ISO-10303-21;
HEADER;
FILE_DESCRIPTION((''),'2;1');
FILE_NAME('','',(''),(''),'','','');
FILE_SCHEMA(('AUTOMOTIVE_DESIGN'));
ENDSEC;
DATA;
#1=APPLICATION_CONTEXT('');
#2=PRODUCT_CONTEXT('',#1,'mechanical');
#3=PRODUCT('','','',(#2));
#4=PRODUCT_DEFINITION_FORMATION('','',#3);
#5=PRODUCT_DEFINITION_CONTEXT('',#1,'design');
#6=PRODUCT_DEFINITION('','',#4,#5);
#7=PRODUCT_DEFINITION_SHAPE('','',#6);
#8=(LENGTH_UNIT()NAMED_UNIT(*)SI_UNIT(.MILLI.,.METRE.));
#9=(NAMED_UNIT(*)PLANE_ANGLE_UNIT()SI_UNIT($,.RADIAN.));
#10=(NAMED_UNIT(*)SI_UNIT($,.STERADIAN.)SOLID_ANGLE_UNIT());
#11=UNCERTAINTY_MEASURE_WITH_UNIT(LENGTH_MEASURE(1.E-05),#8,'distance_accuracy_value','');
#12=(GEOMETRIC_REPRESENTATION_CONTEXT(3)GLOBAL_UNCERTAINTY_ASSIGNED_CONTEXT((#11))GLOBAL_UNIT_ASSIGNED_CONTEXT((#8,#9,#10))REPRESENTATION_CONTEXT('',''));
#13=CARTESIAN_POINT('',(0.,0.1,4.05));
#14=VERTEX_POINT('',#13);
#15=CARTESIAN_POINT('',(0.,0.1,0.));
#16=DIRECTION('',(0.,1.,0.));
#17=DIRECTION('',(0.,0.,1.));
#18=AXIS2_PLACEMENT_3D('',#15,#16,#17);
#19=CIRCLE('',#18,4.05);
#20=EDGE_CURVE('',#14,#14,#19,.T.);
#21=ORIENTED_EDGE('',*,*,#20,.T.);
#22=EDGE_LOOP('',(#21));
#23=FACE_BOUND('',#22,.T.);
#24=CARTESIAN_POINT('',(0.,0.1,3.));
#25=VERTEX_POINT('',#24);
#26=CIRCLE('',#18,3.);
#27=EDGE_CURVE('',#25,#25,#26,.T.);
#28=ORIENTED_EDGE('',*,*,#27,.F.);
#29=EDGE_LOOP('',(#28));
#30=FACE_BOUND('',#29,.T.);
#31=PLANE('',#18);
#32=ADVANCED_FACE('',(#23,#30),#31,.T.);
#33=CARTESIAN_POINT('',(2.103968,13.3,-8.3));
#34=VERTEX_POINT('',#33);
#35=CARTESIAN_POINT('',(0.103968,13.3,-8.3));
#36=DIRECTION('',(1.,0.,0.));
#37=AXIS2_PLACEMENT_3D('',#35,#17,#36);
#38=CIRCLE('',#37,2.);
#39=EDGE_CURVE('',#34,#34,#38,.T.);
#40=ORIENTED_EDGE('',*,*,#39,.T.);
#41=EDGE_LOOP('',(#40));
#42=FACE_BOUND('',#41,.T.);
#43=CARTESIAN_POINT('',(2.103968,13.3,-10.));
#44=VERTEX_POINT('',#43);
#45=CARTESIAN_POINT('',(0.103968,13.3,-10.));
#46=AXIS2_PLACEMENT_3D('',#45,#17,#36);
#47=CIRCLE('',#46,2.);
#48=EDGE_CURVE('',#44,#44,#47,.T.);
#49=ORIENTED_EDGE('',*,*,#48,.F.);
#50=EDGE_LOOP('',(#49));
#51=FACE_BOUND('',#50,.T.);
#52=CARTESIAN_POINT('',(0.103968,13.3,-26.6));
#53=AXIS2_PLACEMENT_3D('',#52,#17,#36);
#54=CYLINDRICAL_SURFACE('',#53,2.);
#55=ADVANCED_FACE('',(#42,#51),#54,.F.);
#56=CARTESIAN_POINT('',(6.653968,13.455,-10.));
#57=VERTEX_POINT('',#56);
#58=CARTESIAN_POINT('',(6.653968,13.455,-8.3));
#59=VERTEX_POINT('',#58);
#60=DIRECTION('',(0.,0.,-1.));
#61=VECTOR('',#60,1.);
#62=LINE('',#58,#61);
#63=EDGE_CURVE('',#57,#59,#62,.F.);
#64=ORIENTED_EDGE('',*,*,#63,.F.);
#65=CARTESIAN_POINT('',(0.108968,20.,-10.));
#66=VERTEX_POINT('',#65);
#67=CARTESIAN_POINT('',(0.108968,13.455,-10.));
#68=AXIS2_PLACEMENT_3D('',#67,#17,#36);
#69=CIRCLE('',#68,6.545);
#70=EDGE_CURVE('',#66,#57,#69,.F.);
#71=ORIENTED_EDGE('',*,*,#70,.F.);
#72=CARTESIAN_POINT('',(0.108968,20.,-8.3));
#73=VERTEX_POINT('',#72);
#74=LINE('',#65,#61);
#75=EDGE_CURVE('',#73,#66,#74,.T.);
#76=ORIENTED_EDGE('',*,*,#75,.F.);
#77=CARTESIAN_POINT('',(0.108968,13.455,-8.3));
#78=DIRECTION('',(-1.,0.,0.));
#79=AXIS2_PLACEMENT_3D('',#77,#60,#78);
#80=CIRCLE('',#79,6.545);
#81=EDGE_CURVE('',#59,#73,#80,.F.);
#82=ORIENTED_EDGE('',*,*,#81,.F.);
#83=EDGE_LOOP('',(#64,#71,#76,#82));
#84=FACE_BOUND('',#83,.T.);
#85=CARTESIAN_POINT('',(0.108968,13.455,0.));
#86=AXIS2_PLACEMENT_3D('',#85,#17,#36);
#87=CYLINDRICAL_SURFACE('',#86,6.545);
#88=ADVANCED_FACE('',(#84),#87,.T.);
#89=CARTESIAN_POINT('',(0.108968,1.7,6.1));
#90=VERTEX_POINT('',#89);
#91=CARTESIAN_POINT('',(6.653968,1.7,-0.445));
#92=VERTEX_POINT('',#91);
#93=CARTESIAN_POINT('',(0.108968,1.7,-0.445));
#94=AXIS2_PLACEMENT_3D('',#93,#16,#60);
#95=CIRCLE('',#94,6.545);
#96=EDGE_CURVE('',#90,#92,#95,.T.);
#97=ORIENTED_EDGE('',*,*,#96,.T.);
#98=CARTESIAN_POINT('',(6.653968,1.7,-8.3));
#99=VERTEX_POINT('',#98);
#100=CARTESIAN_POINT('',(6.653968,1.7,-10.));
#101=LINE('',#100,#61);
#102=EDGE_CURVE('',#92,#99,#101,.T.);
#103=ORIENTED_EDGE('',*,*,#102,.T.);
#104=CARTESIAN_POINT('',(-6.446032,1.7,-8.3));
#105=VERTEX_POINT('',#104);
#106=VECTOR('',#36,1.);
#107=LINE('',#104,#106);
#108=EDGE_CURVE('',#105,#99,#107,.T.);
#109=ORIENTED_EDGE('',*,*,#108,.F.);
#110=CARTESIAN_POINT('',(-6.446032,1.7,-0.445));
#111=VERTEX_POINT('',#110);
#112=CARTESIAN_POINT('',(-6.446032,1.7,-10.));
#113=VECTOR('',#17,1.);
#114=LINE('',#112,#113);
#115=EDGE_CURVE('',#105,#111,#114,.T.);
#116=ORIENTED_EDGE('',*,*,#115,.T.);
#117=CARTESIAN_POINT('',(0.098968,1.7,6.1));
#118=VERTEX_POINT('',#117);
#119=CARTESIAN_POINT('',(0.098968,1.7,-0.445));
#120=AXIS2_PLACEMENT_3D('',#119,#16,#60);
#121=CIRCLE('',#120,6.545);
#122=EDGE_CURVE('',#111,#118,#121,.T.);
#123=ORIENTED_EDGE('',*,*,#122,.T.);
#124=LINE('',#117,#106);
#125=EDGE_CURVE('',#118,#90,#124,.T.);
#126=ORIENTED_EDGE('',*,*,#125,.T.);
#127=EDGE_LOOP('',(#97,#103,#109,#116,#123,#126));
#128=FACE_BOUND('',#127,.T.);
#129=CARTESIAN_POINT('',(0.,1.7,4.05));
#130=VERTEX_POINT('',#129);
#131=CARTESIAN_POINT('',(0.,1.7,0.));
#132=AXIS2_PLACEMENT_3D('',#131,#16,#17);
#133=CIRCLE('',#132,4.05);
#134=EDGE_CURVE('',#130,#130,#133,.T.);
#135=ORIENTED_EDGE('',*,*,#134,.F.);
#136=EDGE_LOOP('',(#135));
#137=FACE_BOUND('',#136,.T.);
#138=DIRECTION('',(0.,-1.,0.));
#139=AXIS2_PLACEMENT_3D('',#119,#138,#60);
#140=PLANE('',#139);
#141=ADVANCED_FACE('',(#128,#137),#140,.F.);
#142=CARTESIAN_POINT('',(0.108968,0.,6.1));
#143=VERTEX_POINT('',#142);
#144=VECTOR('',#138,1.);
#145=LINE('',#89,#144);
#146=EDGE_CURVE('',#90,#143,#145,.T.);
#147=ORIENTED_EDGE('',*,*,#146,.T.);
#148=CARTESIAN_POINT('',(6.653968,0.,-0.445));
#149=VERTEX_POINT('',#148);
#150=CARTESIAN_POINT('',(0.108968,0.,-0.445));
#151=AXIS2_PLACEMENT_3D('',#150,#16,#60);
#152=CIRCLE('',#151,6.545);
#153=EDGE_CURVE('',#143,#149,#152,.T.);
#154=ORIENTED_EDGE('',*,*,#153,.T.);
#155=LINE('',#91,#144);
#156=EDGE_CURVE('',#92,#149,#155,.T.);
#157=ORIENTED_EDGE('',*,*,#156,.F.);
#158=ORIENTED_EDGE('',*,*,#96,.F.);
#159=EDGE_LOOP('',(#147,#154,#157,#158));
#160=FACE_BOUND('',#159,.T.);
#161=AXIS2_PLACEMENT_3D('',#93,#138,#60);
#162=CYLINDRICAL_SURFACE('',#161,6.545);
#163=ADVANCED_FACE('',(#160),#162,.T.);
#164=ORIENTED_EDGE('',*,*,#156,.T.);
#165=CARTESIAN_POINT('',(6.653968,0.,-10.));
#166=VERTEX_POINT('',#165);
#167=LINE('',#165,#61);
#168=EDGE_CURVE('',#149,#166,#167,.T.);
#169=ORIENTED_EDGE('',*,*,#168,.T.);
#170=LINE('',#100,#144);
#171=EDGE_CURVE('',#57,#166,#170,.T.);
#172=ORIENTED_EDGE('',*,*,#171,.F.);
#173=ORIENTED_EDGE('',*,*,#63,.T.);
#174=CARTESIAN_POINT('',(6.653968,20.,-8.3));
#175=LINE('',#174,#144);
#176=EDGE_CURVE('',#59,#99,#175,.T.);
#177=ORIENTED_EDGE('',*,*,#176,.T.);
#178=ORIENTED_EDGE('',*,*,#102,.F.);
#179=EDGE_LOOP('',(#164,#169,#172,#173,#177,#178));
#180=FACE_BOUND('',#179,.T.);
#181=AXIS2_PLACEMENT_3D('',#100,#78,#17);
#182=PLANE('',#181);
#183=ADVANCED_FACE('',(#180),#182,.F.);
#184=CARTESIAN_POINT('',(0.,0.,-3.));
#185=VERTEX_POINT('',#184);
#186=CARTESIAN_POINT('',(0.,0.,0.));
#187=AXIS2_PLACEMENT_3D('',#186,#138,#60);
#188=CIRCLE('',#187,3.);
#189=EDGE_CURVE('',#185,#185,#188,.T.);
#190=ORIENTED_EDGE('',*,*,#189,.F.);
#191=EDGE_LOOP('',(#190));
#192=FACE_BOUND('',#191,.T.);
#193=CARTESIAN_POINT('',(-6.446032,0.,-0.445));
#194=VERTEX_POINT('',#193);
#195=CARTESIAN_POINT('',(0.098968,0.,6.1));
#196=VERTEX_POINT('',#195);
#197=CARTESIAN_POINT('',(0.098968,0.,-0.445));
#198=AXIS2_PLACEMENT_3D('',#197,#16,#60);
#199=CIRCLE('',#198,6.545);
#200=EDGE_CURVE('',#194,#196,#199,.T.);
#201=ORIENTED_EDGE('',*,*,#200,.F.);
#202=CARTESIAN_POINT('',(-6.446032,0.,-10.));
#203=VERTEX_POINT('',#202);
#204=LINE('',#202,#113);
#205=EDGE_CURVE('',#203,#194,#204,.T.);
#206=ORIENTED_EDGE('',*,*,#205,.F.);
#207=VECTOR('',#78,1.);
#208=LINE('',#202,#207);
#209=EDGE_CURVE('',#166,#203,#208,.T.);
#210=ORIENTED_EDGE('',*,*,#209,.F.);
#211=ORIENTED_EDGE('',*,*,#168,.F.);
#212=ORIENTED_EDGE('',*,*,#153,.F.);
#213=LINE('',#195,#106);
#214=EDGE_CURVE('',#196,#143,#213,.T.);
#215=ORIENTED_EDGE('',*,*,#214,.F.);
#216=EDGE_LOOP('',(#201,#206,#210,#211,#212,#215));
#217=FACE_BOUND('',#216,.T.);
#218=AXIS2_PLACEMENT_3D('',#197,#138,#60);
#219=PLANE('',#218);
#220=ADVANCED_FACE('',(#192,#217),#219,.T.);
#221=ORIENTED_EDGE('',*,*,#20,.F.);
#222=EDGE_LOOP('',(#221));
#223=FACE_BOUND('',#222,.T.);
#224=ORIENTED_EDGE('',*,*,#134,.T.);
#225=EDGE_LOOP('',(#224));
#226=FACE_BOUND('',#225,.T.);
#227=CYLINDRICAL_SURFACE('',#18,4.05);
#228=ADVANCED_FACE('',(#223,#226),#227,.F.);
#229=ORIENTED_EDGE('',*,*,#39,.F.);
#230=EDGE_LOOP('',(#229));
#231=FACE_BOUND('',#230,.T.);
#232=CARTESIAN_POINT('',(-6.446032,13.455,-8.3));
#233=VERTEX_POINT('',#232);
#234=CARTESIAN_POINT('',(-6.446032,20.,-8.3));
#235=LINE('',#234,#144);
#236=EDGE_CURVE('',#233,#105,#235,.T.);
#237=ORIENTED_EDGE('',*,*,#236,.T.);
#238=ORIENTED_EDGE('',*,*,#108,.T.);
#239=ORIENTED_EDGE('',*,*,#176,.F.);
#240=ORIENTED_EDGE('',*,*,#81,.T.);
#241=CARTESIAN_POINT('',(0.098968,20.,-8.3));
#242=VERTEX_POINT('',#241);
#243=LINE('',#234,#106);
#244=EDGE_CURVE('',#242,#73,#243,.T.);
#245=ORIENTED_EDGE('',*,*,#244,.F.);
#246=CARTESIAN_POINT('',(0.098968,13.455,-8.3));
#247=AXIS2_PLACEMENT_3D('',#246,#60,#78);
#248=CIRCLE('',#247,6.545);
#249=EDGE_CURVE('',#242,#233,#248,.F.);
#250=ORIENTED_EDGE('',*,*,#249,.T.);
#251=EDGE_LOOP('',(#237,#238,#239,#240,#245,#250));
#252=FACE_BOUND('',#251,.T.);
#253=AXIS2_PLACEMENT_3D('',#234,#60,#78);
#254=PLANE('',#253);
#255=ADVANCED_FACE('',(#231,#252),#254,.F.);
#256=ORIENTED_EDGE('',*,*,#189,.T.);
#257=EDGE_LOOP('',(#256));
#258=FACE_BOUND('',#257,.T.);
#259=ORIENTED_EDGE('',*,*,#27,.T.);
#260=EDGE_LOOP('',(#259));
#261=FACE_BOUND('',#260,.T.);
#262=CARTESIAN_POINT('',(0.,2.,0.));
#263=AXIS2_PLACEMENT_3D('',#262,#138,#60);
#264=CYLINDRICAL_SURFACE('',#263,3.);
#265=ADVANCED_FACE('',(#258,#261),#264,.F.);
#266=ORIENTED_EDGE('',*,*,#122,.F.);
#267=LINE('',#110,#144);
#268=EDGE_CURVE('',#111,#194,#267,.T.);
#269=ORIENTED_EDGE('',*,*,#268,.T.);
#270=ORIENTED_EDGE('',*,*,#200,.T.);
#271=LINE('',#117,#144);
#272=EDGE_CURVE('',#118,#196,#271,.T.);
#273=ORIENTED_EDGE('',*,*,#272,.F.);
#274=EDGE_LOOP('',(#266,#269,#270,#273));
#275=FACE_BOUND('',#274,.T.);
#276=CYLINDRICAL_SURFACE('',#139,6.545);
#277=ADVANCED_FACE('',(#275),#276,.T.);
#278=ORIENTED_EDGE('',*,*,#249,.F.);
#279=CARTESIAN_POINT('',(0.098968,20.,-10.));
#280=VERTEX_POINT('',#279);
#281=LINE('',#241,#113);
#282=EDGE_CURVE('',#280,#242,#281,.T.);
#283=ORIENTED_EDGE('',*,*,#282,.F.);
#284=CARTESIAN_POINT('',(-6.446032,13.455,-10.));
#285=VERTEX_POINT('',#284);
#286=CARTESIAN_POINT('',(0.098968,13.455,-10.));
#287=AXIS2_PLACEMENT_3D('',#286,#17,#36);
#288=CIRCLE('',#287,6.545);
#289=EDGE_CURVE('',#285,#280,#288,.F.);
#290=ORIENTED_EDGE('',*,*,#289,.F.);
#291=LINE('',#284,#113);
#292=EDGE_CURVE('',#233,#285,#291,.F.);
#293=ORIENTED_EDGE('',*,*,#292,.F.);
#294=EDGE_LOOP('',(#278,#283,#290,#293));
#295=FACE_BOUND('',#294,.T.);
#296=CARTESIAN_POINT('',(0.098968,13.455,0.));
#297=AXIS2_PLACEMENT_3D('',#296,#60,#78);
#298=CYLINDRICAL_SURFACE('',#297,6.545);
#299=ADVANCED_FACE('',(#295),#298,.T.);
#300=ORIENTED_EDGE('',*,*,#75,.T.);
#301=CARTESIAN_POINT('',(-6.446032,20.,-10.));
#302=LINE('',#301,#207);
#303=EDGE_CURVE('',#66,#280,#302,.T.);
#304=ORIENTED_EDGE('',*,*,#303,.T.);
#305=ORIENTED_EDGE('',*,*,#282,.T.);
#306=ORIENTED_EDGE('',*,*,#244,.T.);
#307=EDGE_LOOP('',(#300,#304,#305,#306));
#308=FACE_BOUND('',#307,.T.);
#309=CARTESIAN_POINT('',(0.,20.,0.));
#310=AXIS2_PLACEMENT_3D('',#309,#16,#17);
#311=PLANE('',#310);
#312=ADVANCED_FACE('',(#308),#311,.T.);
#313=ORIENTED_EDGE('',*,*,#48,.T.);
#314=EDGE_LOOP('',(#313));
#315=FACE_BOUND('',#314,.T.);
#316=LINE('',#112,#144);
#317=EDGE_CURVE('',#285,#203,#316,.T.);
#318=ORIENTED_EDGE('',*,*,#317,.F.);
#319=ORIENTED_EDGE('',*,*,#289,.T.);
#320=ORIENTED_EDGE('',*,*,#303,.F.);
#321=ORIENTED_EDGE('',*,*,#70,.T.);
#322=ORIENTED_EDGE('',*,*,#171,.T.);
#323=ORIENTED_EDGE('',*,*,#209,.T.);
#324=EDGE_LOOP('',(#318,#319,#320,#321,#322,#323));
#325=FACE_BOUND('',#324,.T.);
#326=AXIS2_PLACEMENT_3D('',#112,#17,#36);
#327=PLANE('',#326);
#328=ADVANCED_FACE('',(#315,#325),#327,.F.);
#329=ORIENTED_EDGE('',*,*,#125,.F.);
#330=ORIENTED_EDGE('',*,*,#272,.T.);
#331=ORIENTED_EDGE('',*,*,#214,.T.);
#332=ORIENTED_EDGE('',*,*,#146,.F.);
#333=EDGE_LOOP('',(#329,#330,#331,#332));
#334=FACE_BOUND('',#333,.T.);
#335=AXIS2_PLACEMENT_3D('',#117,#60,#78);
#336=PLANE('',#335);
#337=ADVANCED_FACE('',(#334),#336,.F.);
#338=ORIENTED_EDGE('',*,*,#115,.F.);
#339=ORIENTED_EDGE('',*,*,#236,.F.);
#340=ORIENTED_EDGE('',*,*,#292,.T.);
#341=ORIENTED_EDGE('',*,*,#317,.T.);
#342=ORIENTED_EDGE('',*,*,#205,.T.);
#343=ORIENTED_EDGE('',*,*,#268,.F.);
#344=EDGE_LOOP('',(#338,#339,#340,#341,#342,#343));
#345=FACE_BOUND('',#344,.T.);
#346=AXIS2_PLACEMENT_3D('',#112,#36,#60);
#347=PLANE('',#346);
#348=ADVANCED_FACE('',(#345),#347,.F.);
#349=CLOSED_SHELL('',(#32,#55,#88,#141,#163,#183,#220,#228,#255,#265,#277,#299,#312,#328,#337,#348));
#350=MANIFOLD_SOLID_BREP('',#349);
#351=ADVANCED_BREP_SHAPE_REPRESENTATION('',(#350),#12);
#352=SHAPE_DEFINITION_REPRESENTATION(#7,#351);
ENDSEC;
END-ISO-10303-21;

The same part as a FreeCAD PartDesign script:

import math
import FreeCAD as App
import Part
import Sketcher
from FreeCAD import Vector
Q = App.Units.Quantity


def edges_at(feature, points):
    """Names of the edges that pass closest to the given points."""
    edges = feature.Shape.Edges
    near = lambda p: min(range(len(edges)), key=lambda i: edges[i].distToShape(Part.Vertex(*p))[0])
    return sorted({f"Edge{near(p) + 1}" for p in points})


def add_polygon(sketch, points):
    """Adds a closed chain of lines whose ends are joined by coincident constraints."""
    first, n = sketch.GeometryCount, len(points)
    for a, b in zip(points, points[1:] + points[:1]):
        sketch.addGeometry(Part.LineSegment(App.Vector(*a, 0), App.Vector(*b, 0)), False)
    for i in range(n):
        sketch.addConstraint(Sketcher.Constraint("Coincident", first + i, 2, first + (i + 1) % n, 1))

doc = App.newDocument("Part")
body = doc.addObject("PartDesign::Body", "Body")

sketch1 = body.newObject("Sketcher::SketchObject", "Sketch")
sketch1.AttachmentSupport = (doc.getObject("XZ_Plane"), [""])
sketch1.MapMode = "FlatFace"
sketch1.addGeometry([
    Part.LineSegment(Vector(6.654, -10, 0), Vector(-6.446, -10, 0)),
    Part.LineSegment(Vector(-6.446, -10, 0), Vector(-6.446, -0.445, 0)),
    Part.ArcOfCircle(Part.Circle(Vector(0.099, -0.445, 0), Vector(0, 0, 1), 6.545), math.radians(90), math.radians(180)),
    Part.LineSegment(Vector(0.099, 6.1, 0), Vector(0.109, 6.1, 0)),
    Part.ArcOfCircle(Part.Circle(Vector(0.109, -0.445, 0), Vector(0, 0, 1), 6.545), math.radians(0), math.radians(90)),
    Part.LineSegment(Vector(6.654, -0.445, 0), Vector(6.654, -10, 0)),
    Part.Circle(Vector(0, 0, 0), Vector(0, 0, 1), 2.5),
], False)
sketch1.addConstraint([
    Sketcher.Constraint("Coincident", 0, 2, 1, 1),
    Sketcher.Constraint("Tangent", 1, 2, 2, 2),
    Sketcher.Constraint("Tangent", 2, 1, 3, 1),
    Sketcher.Constraint("Tangent", 3, 2, 4, 2),
    Sketcher.Constraint("Tangent", 4, 1, 5, 1),
    Sketcher.Constraint("Coincident", 5, 2, 0, 1),
    Sketcher.Constraint("Horizontal", 0),
    Sketcher.Constraint("Vertical", 1),
    Sketcher.Constraint("Vertical", 5),
    Sketcher.Constraint("Coincident", 6, 3, -1, 1),
    Sketcher.Constraint("Equal", 2, 4),
    Sketcher.Constraint("Vertical", 4, 3, 3, 2),
    Sketcher.Constraint("Diameter", 6, Q("5 mm")),
    Sketcher.Constraint("DistanceX", 0, 2, 0, 1, Q("13.1 mm")),
    Sketcher.Constraint("DistanceY", 0, 2, -1, 1, Q("10 mm")),
    Sketcher.Constraint("Radius", 2, Q("6.545 mm")),
    Sketcher.Constraint("DistanceY", -1, 1, 2, 1, Q("6.1 mm")),
    Sketcher.Constraint("DistanceX", -1, 1, 2, 3, Q("0.098968 mm")),
])
pad1 = body.newObject("PartDesign::Pad", "Pad")
pad1.Profile = sketch1
pad1.Length = 1.7
pad1.Reversed = True

sketch2 = body.newObject("Sketcher::SketchObject", "Sketch001")
sketch2.AttachmentSupport = (doc.getObject("XZ_Plane"), [""])
sketch2.MapMode = "FlatFace"
sketch2.AttachmentOffset = App.Placement(Vector(0, 0, -1.7), App.Rotation())
add_polygon(sketch2, [(-6.4, -10), (-6.4, -8.3), (6.7, -8.3), (6.7, -10)])
sketch2.addConstraint([
    Sketcher.Constraint("Vertical", 0),
    Sketcher.Constraint("Horizontal", 1),
    Sketcher.Constraint("Vertical", 2),
    Sketcher.Constraint("Horizontal", 3),
    Sketcher.Constraint("DistanceX", 1, 1, 1, 2, Q("13.1 mm")),
    Sketcher.Constraint("DistanceY", 0, 1, 0, 2, Q("1.7 mm")),
    Sketcher.Constraint("DistanceY", 2, 2, -1, 1, Q("10 mm")),
    Sketcher.Constraint("DistanceX", 0, 2, -1, 1, Q("6.446032 mm")),
])
pad2 = body.newObject("PartDesign::Pad", "Pad001")
pad2.Profile = sketch2
pad2.Length = 18.3
pad2.Reversed = True

sketch3 = body.newObject("Sketcher::SketchObject", "Sketch002")
sketch3.AttachmentSupport = (doc.getObject("XY_Plane"), [""])
sketch3.MapMode = "FlatFace"
sketch3.AttachmentOffset = App.Placement(Vector(0, 0, -8.3), App.Rotation())
sketch3.addGeometry(Part.Circle(Vector(0.1, 13.3, 0), Vector(0, 0, 1), 2), False)
sketch3.addConstraint([
    Sketcher.Constraint("Diameter", 0, Q("4 mm")),
    Sketcher.Constraint("DistanceY", -1, 1, 0, 3, Q("13.3 mm")),
    Sketcher.Constraint("DistanceX", -1, 1, 0, 3, Q("0.103968 mm")),
])
pocket1 = body.newObject("PartDesign::Pocket", "Pocket")
pocket1.Profile = sketch3
pocket1.Length = 18.3
doc.recompute()

fillet = body.newObject("PartDesign::Fillet", "Fillet")
fillet.Base = (pocket1, edges_at(pocket1, [(-6.446, 20, -9.15), (6.654, 20, -9.15)]))
fillet.Radius = 6.545

sketch4 = body.newObject("Sketcher::SketchObject", "Sketch003")
sketch4.AttachmentSupport = (doc.getObject("XZ_Plane"), [""])
sketch4.MapMode = "FlatFace"
sketch4.AttachmentOffset = App.Placement(Vector(0, 0, -1.7), App.Rotation())
sketch4.addGeometry(Part.Circle(Vector(0, 0, 0), Vector(0, 0, 1), 4), False)
sketch4.addConstraint([
    Sketcher.Constraint("Coincident", 0, 3, -1, 1),
    Sketcher.Constraint("Diameter", 0, Q("8.1 mm")),
])
pocket2 = body.newObject("PartDesign::Pocket", "Pocket001")
pocket2.Profile = sketch4
pocket2.Length = 1.6
pocket2.Reversed = True

sketch5 = body.newObject("Sketcher::SketchObject", "Sketch004")
sketch5.AttachmentSupport = (doc.getObject("XZ_Plane"), [""])
sketch5.MapMode = "FlatFace"
sketch5.addGeometry([
    Part.Circle(Vector(0, 0, 0), Vector(0, 0, 1), 2.5),
    Part.Circle(Vector(0, 0, 0), Vector(0, 0, 1), 1.5),
], False)
sketch5.addConstraint([
    Sketcher.Constraint("Coincident", 0, 3, -1, 1),
    Sketcher.Constraint("Coincident", 1, 3, -1, 1),
    Sketcher.Constraint("Diameter", 0, Q("5 mm")),
    Sketcher.Constraint("Diameter", 1, Q("3 mm")),
])
pad3 = body.newObject("PartDesign::Pad", "Pad002")
pad3.Profile = sketch5
pad3.Length = 0.1
pad3.Reversed = True

sketch6 = body.newObject("Sketcher::SketchObject", "Sketch005")
sketch6.AttachmentSupport = (doc.getObject("XZ_Plane"), [""])
sketch6.MapMode = "FlatFace"
sketch6.addGeometry([
    Part.Circle(Vector(0, 0, 0), Vector(0, 0, 1), 3),
    Part.Circle(Vector(0, 0, 0), Vector(0, 0, 1), 1.5),
], False)
sketch6.addConstraint([
    Sketcher.Constraint("Coincident", 0, 3, -1, 1),
    Sketcher.Constraint("Coincident", 1, 3, -1, 1),
    Sketcher.Constraint("Diameter", 0, Q("6 mm")),
    Sketcher.Constraint("Diameter", 1, Q("3 mm")),
])
pocket3 = body.newObject("PartDesign::Pocket", "Pocket002")
pocket3.Profile = sketch6
pocket3.Length = 2

doc.recompute()
